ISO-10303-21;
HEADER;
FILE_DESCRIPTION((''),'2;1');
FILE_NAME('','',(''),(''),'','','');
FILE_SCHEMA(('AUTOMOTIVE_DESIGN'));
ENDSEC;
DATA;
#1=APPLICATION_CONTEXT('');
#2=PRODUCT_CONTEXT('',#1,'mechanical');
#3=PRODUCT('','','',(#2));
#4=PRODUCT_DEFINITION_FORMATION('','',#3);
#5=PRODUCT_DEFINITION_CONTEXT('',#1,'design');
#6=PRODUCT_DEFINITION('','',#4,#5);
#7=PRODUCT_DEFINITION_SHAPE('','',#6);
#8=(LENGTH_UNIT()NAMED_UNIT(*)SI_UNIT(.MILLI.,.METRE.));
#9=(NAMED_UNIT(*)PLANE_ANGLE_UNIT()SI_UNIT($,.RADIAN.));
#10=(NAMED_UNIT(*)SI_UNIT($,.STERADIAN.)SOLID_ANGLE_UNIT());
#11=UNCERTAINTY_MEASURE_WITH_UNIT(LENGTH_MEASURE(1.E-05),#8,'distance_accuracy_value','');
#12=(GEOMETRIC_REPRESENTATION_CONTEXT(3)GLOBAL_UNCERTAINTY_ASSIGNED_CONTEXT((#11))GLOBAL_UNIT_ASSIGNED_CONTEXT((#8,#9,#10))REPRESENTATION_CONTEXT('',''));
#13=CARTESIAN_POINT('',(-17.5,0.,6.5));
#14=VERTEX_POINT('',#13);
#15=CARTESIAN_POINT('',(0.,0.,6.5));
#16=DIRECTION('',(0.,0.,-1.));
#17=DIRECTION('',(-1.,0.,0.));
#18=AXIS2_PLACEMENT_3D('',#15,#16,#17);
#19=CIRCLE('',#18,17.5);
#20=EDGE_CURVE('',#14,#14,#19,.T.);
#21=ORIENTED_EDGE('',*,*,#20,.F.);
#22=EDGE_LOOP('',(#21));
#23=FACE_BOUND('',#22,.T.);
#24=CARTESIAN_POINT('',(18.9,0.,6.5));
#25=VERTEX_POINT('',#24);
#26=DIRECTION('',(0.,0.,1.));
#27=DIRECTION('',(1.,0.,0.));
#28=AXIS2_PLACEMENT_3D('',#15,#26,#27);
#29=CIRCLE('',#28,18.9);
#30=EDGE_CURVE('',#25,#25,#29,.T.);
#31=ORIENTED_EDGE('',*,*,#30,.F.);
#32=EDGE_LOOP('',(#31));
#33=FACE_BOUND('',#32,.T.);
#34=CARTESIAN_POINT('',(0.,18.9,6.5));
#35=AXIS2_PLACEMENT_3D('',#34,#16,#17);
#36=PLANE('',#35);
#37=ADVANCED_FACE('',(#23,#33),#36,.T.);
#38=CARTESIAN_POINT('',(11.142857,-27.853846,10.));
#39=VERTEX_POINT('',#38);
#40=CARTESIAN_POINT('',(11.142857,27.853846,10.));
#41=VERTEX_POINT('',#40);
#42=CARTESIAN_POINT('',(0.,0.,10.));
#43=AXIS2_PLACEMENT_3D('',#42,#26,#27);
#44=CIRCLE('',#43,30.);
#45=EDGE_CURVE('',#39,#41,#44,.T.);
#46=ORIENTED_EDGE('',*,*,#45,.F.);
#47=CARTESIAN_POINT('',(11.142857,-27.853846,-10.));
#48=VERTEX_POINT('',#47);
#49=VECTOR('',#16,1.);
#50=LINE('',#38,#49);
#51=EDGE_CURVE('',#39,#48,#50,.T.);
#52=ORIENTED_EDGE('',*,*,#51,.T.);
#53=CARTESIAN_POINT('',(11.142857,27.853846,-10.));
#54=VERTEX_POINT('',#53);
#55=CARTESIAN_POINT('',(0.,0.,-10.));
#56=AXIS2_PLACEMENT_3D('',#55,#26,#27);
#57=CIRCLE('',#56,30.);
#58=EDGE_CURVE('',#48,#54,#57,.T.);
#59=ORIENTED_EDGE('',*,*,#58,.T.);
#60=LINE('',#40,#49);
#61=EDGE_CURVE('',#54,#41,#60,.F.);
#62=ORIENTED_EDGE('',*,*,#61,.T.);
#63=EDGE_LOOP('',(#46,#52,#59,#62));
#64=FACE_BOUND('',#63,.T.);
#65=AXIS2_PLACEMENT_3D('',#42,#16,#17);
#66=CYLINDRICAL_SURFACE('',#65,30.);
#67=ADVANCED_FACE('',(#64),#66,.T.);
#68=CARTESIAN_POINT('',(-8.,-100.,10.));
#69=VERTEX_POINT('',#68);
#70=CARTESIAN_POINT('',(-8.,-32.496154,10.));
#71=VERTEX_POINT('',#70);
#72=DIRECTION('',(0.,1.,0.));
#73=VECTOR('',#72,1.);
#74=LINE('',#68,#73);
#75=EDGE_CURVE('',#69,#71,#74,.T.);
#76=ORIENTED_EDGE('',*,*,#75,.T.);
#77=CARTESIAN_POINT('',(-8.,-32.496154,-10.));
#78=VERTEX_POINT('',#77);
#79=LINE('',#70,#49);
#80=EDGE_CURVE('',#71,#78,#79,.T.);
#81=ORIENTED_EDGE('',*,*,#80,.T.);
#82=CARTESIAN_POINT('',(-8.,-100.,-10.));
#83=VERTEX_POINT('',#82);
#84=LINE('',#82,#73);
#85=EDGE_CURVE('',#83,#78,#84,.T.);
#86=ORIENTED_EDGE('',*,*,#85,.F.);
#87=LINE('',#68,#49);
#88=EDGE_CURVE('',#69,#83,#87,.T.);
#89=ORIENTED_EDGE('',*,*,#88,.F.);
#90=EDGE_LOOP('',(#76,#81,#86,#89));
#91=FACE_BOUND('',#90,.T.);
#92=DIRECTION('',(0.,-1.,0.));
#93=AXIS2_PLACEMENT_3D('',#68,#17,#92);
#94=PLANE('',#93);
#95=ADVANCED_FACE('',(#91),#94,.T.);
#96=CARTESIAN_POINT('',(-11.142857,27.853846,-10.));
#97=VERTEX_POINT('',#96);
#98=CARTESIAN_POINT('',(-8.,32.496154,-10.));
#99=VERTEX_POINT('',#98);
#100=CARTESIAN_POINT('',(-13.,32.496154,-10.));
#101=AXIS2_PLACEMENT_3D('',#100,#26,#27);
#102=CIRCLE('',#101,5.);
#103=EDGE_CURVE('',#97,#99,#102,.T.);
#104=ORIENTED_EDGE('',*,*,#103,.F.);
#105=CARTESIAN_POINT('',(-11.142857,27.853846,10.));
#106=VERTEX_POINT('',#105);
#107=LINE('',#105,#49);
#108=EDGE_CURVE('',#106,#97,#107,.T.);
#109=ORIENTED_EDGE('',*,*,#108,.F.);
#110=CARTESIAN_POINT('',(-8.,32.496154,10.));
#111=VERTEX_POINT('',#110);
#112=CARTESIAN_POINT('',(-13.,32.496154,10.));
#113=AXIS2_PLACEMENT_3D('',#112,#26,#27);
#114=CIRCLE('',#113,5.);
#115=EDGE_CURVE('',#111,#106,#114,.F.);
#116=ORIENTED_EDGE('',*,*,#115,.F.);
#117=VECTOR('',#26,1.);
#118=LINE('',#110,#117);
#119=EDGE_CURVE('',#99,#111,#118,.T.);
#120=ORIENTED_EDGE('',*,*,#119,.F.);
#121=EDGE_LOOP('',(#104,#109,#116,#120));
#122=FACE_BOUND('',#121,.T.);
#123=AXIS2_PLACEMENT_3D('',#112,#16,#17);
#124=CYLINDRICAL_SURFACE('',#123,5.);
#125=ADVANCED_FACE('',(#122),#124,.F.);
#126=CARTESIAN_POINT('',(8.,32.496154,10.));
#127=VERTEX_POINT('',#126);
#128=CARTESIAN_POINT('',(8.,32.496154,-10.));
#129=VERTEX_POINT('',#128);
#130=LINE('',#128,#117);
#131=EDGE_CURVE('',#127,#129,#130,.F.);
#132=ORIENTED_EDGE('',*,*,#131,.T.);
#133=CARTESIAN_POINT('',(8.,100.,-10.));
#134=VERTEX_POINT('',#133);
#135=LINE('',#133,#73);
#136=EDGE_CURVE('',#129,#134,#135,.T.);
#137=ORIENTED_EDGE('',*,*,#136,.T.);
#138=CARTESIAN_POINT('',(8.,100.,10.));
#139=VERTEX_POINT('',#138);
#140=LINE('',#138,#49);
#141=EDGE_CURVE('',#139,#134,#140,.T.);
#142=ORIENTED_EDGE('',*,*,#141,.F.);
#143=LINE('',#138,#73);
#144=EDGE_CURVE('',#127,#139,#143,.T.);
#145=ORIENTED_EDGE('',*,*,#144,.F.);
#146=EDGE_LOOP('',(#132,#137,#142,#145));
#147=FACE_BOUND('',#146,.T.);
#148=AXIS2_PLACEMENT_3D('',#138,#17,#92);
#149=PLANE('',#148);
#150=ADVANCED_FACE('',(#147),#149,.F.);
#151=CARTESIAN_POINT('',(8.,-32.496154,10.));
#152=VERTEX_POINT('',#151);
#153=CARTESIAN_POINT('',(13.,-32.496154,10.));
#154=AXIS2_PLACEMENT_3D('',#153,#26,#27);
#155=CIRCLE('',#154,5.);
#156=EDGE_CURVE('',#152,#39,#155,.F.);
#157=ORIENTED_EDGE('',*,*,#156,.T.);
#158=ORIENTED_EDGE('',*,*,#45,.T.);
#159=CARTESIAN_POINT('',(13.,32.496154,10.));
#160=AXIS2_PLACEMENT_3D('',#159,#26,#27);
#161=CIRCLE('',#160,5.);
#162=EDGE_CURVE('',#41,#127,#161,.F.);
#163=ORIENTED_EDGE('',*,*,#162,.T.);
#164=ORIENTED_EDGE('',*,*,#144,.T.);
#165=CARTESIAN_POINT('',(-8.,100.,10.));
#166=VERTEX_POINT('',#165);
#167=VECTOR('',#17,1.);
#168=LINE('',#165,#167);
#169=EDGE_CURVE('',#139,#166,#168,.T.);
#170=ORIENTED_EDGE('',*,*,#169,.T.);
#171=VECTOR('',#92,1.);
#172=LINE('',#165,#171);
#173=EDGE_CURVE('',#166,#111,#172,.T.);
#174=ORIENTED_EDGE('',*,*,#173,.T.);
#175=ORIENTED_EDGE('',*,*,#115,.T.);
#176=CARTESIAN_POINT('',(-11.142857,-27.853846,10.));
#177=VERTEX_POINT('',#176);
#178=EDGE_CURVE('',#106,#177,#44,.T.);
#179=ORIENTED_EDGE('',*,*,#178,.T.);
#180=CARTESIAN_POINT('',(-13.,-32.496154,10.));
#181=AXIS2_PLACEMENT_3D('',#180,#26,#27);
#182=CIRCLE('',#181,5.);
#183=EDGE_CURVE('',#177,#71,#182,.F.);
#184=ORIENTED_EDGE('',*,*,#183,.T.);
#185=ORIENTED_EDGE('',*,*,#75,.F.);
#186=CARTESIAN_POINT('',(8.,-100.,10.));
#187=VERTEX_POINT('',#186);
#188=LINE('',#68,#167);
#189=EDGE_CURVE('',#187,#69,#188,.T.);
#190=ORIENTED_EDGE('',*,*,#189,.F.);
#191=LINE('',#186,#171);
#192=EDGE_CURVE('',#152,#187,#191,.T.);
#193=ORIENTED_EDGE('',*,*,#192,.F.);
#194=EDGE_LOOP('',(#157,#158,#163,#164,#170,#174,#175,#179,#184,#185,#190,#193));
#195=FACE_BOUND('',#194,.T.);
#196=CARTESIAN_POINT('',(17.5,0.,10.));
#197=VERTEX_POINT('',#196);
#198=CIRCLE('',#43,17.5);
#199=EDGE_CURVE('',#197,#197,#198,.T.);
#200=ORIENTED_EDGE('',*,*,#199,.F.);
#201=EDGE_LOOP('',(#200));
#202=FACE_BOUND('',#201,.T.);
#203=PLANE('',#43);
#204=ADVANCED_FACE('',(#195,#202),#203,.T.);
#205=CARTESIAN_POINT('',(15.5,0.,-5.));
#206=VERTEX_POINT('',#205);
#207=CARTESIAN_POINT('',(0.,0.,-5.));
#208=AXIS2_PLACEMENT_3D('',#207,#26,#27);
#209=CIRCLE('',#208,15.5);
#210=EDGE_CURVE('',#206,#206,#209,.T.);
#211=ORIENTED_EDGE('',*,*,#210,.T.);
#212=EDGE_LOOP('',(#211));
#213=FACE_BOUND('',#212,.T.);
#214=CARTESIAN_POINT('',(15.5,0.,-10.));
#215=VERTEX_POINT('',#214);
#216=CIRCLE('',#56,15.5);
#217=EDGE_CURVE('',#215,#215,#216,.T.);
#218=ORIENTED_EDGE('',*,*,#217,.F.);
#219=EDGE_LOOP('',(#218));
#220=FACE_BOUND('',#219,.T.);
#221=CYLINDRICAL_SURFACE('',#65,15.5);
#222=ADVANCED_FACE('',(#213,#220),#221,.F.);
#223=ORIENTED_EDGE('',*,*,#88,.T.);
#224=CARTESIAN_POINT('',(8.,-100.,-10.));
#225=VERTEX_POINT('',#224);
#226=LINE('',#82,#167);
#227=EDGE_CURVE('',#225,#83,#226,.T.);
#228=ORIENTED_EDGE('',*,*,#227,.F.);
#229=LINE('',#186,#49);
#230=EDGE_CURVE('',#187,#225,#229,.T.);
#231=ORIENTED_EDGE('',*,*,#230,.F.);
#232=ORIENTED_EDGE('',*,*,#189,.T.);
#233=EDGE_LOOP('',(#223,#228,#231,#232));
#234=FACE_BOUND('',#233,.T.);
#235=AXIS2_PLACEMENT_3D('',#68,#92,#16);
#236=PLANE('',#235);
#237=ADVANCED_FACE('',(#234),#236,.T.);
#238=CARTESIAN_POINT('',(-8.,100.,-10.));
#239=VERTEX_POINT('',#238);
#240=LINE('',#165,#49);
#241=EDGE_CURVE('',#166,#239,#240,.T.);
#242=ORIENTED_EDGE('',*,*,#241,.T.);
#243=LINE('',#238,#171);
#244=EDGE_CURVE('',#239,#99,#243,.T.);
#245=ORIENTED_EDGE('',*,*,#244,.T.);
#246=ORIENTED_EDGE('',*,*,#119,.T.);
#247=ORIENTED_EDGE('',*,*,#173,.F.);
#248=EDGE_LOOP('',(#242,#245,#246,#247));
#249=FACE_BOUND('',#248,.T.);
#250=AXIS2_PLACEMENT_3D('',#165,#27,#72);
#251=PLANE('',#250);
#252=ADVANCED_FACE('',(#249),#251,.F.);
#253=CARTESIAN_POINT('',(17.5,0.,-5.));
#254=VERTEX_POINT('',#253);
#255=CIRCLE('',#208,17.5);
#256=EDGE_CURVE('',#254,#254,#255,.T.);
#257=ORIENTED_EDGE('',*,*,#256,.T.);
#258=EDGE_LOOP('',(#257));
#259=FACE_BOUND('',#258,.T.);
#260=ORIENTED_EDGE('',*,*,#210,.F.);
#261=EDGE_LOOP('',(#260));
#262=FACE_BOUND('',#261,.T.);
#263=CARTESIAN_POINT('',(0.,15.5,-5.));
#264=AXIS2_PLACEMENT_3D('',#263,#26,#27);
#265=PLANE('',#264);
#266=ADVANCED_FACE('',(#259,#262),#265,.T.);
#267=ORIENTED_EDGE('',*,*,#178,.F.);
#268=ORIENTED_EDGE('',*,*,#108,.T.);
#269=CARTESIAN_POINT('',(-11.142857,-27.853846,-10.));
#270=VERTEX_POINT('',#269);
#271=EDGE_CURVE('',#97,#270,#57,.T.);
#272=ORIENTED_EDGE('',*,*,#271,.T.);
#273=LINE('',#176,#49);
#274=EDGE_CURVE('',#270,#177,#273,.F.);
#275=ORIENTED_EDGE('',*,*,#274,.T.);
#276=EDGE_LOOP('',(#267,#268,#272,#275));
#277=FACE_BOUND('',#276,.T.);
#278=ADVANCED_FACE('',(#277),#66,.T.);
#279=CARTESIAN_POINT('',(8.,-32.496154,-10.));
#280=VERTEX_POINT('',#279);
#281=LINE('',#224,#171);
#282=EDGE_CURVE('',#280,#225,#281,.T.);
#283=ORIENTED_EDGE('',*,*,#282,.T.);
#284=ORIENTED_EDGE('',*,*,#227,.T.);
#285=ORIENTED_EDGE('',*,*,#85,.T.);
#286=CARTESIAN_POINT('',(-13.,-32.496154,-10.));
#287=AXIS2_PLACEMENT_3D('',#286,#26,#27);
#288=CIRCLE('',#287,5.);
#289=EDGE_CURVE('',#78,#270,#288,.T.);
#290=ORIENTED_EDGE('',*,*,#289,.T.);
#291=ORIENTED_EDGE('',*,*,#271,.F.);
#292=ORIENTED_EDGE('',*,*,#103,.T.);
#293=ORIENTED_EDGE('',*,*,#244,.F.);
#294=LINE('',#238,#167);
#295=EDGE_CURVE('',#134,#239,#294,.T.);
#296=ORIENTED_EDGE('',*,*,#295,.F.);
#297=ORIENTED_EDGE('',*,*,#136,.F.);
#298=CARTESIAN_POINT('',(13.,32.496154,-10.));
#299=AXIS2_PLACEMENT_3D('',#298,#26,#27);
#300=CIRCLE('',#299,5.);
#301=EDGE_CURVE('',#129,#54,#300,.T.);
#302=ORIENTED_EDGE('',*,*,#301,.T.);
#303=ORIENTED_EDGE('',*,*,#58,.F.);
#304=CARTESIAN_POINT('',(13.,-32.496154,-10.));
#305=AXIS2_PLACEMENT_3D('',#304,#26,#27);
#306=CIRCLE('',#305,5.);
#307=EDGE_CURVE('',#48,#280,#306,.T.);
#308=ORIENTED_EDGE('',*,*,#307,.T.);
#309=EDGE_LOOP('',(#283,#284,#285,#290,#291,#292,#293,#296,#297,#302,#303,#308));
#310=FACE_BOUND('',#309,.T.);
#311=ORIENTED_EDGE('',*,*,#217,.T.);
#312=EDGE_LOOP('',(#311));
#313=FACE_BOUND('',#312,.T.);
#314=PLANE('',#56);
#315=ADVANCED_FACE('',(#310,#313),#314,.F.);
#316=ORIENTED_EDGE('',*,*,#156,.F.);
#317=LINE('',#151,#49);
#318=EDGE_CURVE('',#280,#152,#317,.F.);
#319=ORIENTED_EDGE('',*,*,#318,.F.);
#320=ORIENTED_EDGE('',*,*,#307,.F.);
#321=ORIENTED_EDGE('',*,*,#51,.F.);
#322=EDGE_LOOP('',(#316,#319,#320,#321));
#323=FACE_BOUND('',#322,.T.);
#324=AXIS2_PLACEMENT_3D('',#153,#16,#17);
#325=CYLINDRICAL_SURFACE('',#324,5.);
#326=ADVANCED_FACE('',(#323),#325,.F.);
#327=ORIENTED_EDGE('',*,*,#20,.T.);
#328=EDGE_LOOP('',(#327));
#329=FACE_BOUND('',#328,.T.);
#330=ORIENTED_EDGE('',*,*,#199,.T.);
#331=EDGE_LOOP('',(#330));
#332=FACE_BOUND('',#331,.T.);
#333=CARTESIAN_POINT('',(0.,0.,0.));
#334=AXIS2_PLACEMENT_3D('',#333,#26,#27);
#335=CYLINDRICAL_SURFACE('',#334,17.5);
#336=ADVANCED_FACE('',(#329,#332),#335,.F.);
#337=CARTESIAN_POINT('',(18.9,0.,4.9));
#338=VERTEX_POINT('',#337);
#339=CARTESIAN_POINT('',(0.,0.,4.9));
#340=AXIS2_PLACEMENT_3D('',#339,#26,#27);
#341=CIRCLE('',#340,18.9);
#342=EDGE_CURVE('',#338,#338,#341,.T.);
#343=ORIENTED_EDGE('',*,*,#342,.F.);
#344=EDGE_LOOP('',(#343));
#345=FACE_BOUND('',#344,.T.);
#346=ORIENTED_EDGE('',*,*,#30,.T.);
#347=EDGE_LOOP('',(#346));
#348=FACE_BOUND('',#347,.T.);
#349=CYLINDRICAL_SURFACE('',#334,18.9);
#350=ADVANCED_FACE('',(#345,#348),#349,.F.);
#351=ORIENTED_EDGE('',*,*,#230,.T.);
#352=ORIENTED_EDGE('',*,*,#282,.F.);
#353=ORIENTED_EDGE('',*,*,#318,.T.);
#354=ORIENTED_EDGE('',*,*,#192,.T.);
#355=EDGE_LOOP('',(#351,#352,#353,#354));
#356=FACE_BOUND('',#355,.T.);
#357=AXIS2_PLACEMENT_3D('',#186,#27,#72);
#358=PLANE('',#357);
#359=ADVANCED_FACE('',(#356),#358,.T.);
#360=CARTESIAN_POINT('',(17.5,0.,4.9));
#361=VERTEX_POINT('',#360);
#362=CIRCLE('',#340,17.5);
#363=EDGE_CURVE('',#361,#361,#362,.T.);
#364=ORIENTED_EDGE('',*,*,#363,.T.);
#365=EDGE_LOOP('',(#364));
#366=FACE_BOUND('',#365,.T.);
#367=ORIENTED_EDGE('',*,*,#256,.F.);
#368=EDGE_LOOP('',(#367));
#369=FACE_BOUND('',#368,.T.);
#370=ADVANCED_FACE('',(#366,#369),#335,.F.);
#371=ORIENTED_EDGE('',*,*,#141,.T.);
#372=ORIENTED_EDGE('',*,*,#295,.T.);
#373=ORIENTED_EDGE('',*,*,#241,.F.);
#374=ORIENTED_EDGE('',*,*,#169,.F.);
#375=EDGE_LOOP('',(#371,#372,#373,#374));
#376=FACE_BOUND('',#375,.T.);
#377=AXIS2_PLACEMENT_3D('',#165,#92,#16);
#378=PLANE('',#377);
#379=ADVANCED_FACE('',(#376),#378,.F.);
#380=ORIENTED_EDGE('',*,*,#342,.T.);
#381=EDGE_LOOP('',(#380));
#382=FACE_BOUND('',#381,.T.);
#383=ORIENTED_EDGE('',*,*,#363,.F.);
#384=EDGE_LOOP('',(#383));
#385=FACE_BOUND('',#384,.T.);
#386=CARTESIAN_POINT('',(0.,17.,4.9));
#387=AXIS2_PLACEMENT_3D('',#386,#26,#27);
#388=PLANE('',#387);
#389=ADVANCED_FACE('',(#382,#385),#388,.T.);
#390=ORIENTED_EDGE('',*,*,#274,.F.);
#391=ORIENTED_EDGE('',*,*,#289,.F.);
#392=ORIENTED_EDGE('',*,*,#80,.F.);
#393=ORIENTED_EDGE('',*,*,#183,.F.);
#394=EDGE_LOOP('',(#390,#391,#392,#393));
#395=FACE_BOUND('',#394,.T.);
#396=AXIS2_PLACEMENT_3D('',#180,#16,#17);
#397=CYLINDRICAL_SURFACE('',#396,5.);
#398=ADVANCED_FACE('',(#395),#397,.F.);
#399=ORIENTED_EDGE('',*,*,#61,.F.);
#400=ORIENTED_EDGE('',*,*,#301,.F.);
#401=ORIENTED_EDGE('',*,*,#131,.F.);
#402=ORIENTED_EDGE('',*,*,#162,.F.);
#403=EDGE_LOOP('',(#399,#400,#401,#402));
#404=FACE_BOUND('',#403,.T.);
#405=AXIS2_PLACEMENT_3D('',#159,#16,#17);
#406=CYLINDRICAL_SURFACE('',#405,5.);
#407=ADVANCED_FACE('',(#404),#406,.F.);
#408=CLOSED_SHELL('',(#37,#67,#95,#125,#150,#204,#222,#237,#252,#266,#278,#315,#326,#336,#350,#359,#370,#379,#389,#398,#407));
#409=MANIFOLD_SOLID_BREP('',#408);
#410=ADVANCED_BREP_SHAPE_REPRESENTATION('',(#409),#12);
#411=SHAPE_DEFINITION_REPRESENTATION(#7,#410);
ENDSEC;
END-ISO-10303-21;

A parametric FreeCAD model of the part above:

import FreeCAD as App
import Part
import Sketcher


def edges_at(feature, points):
    """Names of the edges that pass closest to the given points."""
    edges = feature.Shape.Edges
    near = lambda p: min(range(len(edges)), key=lambda i: edges[i].distToShape(Part.Vertex(*p))[0])
    return sorted({f"Edge{near(p) + 1}" for p in points})


def add_polygon(sketch, points):
    """Adds a closed chain of lines whose ends are joined by coincident constraints."""
    first, n = sketch.GeometryCount, len(points)
    for a, b in zip(points, points[1:] + points[:1]):
        sketch.addGeometry(Part.LineSegment(App.Vector(*a, 0), App.Vector(*b, 0)), False)
    for i in range(n):
        sketch.addConstraint(Sketcher.Constraint("Coincident", first + i, 2, first + (i + 1) % n, 1))

doc = App.newDocument("Part")
body = doc.addObject("PartDesign::Body", "Body")

# Sketch on XY plane
sketch1 = body.newObject("Sketcher::SketchObject", "Sketch")
sketch1.AttachmentSupport = (doc.getObject("XY_Plane"), [""])
sketch1.MapMode = "FlatFace"
sketch1.addGeometry(Part.Circle(App.Vector(0, 0, 0), App.Vector(0, 0, 1), 30), False)
sketch1.addGeometry(Part.Circle(App.Vector(0, 0, 0), App.Vector(0, 0, 1), 15.5), False)
sketch1.addConstraint(Sketcher.Constraint("Coincident", 0, 3, -1, 1))
sketch1.addConstraint(Sketcher.Constraint("Coincident", 1, 3, -1, 1))
sketch1.addConstraint(Sketcher.Constraint("Diameter", 0, 60.0))
sketch1.addConstraint(Sketcher.Constraint("Diameter", 1, 31.0))
pad1 = body.newObject("PartDesign::Pad", "Pad")
pad1.Profile = sketch1
pad1.Length = 20
pad1.Midplane = True

# Sketch on XY plane
sketch2 = body.newObject("Sketcher::SketchObject", "Sketch001")
sketch2.AttachmentSupport = (doc.getObject("XY_Plane"), [""])
sketch2.MapMode = "FlatFace"
add_polygon(sketch2, [(8, 100), (-8, 100), (-8, 28.913665), (0, 30), (8, 28.913665)])  # lines 0-4
sketch2.addConstraint(Sketcher.Constraint("Horizontal", 0))
sketch2.addConstraint(Sketcher.Constraint("Vertical", 1))
sketch2.addConstraint(Sketcher.Constraint("Vertical", 4))
sketch2.addConstraint(Sketcher.Constraint("Symmetric", 1, 2, 3, 2, -2))
sketch2.addConstraint(Sketcher.Constraint("PointOnObject", 2, 2, -2))
sketch2.addConstraint(Sketcher.Constraint("DistanceX", 0, 2, 0, 1, 16.0))
sketch2.addConstraint(Sketcher.Constraint("DistanceY", -1, 1, 0, 2, 100.0))
sketch2.addConstraint(Sketcher.Constraint("DistanceY", -1, 1, 2, 2, 30.0))
sketch2.addConstraint(Sketcher.Constraint("Distance", 2, 8.073421))
pad2 = body.newObject("PartDesign::Pad", "Pad001")
pad2.Profile = sketch2
pad2.Length = 20
pad2.Midplane = True
doc.recompute()

mirrored = body.newObject("PartDesign::Mirrored", "Mirrored")
mirrored.Originals = [pad2]
mirrored.MirrorPlane = (doc.getObject("XZ_Plane"), [""])
body.Tip = mirrored

# Sketch on YZ plane
sketch3 = body.newObject("Sketcher::SketchObject", "Sketch002")
sketch3.AttachmentSupport = (doc.getObject("YZ_Plane"), [""])
sketch3.MapMode = "FlatFace"
add_polygon(sketch3, [(17.5, 10), (15.5, 10), (15.5, -5), (17.5, -5)])  # lines 0-3
sketch3.addConstraint(Sketcher.Constraint("Horizontal", 0))
sketch3.addConstraint(Sketcher.Constraint("Vertical", 1))
sketch3.addConstraint(Sketcher.Constraint("Horizontal", 2))
sketch3.addConstraint(Sketcher.Constraint("Vertical", 3))
sketch3.addConstraint(Sketcher.Constraint("DistanceX", 0, 2, 0, 1, 2.0))
sketch3.addConstraint(Sketcher.Constraint("DistanceY", 1, 2, 1, 1, 15.0))
sketch3.addConstraint(Sketcher.Constraint("DistanceY", -1, 1, 0, 2, 10.0))
sketch3.addConstraint(Sketcher.Constraint("DistanceX", -1, 1, 0, 2, 15.5))
groove = body.newObject("PartDesign::Groove", "Groove")
groove.Profile = sketch3
groove.ReferenceAxis = (sketch3, ["V_Axis"])
groove.Angle = 360

# Sketch on YZ plane
sketch4 = body.newObject("Sketcher::SketchObject", "Sketch003")
sketch4.AttachmentSupport = (doc.getObject("YZ_Plane"), [""])
sketch4.MapMode = "FlatFace"
add_polygon(sketch4, [(18.9, 6.5), (17, 6.5), (17, 4.9), (18.9, 4.9)])  # lines 0-3
sketch4.addConstraint(Sketcher.Constraint("Horizontal", 0))
sketch4.addConstraint(Sketcher.Constraint("Vertical", 1))
sketch4.addConstraint(Sketcher.Constraint("Horizontal", 2))
sketch4.addConstraint(Sketcher.Constraint("Vertical", 3))
sketch4.addConstraint(Sketcher.Constraint("DistanceX", 0, 2, 0, 1, 1.9))
sketch4.addConstraint(Sketcher.Constraint("DistanceY", 1, 2, 1, 1, 1.6))
sketch4.addConstraint(Sketcher.Constraint("DistanceX", -1, 1, 0, 2, 17.0))
sketch4.addConstraint(Sketcher.Constraint("DistanceY", -1, 1, 0, 2, 6.5))
groove2 = body.newObject("PartDesign::Groove", "Groove001")
groove2.Profile = sketch4
groove2.ReferenceAxis = (sketch4, ["V_Axis"])
groove2.Angle = 360
doc.recompute()

fillet = body.newObject("PartDesign::Fillet", "Fillet")
fillet.Base = (groove2, edges_at(groove2, [
    (8, 28.914, 0),
    (-8, 28.914, 0),
    (8, -28.914, 0),
    (-8, -28.914, 0),
]))
fillet.Radius = 5

doc.recompute()
